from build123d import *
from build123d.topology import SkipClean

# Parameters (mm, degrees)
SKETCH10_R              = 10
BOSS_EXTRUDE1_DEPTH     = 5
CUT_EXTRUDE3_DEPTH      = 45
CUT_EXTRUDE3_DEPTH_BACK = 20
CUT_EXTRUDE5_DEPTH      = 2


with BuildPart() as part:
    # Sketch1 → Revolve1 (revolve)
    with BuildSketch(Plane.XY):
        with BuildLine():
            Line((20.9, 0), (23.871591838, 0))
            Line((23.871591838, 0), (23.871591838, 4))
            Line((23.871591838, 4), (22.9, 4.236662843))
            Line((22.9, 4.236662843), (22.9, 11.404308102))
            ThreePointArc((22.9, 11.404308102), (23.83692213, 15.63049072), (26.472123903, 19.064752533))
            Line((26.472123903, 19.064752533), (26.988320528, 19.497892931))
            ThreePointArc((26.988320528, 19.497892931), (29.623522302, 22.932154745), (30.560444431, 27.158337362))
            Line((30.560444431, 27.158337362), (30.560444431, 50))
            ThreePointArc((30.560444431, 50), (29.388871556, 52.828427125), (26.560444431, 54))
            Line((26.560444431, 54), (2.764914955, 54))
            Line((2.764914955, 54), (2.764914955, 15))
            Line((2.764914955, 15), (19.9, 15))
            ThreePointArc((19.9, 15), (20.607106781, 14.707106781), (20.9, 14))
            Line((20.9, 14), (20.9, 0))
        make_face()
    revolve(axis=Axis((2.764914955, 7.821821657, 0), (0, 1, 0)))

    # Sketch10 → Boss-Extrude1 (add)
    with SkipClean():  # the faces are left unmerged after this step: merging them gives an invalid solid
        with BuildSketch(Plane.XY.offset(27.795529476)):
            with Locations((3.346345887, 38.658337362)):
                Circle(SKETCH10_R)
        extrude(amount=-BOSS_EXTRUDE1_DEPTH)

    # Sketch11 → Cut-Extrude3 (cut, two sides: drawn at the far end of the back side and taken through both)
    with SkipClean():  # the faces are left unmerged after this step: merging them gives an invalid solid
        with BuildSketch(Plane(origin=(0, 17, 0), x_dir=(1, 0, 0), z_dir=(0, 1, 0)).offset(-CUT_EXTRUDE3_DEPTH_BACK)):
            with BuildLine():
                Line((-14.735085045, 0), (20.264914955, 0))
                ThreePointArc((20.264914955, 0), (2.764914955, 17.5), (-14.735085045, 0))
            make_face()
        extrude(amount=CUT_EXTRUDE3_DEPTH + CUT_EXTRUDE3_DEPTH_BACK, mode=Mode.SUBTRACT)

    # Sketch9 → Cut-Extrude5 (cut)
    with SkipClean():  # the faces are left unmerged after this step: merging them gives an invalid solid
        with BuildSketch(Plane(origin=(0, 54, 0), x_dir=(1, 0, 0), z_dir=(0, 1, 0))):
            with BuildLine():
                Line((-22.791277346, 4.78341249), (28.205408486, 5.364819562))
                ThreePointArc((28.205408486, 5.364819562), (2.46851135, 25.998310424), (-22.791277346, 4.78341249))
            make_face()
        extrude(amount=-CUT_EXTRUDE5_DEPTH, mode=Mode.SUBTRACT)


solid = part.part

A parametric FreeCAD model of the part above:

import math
import FreeCAD as App
import Part
import Sketcher

V = App.Vector
Q = App.Units.Quantity

doc = App.newDocument("Part")
body = doc.addObject("PartDesign::Body", "Body")

# Sketch on XY plane
sketch1 = doc.addObject("Sketcher::SketchObject", "Sketch")
body.addObject(sketch1)
sketch1.AttachmentSupport = (doc.XY_Plane, [""])
sketch1.MapMode = "FlatFace"
sketch1.addGeometry([
    Part.LineSegment(V(20.9, 0, 0), V(23.9, 0, 0)),  # 0
    Part.LineSegment(V(23.9, 0, 0), V(23.9, 4, 0)),  # 1
    Part.LineSegment(V(23.9, 4, 0), V(22.9, 4.2, 0)),  # 2
    Part.LineSegment(V(22.9, 4.2, 0), V(22.9, 11.4, 0)),  # 3
    Part.ArcOfCircle(Part.Circle(V(32.9, 11.4, 0), V(0, 0, 1), 10), math.radians(130), math.radians(180)),  # 4
    Part.LineSegment(V(26.5, 19.1, 0), V(27, 19.5, 0)),  # 5
    Part.ArcOfCircle(Part.Circle(V(20.6, 27.2, 0), V(0, 0, 1), 10), math.radians(-50), math.radians(0)),  # 6
    Part.LineSegment(V(30.6, 27.2, 0), V(30.6, 50, 0)),  # 7
    Part.ArcOfCircle(Part.Circle(V(26.6, 50, 0), V(0, 0, 1), 4), math.radians(0), math.radians(90)),  # 8
    Part.LineSegment(V(26.6, 54, 0), V(2.8, 54, 0)),  # 9
    Part.LineSegment(V(2.8, 54, 0), V(2.8, 15, 0)),  # 10
    Part.LineSegment(V(2.8, 15, 0), V(19.9, 15, 0)),  # 11
    Part.ArcOfCircle(Part.Circle(V(19.9, 14, 0), V(0, 0, 1), 1), math.radians(0), math.radians(90)),  # 12
    Part.LineSegment(V(20.9, 14, 0), V(20.9, 0, 0)),  # 13
], False)
sketch1.addGeometry(Part.LineSegment(V(2.8, 0, 0), V(2.8, 54, 0)), True)  # axis
sketch1.addConstraint([
    Sketcher.Constraint("Coincident", 0, 2, 1, 1),
    Sketcher.Constraint("Coincident", 1, 2, 2, 1),
    Sketcher.Constraint("Coincident", 2, 2, 3, 1),
    Sketcher.Constraint("Tangent", 3, 2, 4, 2),
    Sketcher.Constraint("Tangent", 4, 1, 5, 1),
    Sketcher.Constraint("Tangent", 5, 2, 6, 1),
    Sketcher.Constraint("Tangent", 6, 2, 7, 1),
    Sketcher.Constraint("Tangent", 7, 2, 8, 1),
    Sketcher.Constraint("Tangent", 8, 2, 9, 1),
    Sketcher.Constraint("Coincident", 9, 2, 10, 1),
    Sketcher.Constraint("Coincident", 10, 2, 11, 1),
    Sketcher.Constraint("Tangent", 11, 2, 12, 2),
    Sketcher.Constraint("Tangent", 12, 1, 13, 1),
    Sketcher.Constraint("Coincident", 13, 2, 0, 1),
    Sketcher.Constraint("Horizontal", 0),
    Sketcher.Constraint("Vertical", 1),
    Sketcher.Constraint("Vertical", 3),
    Sketcher.Constraint("Vertical", 7),
    Sketcher.Constraint("Horizontal", 9),
    Sketcher.Constraint("Vertical", 10),
    Sketcher.Constraint("Horizontal", 11),
    Sketcher.Constraint("Vertical", 13),
    Sketcher.Constraint("Vertical", 14),
    Sketcher.Constraint("Coincident", 14, 2, 9, 2),
    Sketcher.Constraint("Equal", 4, 6),
    Sketcher.Constraint("PointOnObject", 0, 2, -1),
    Sketcher.Constraint("PointOnObject", 14, 1, -1),
    Sketcher.Constraint("Radius", 4, Q("10 mm")),
    Sketcher.Constraint("Radius", 8, Q("4 mm")),
    Sketcher.Constraint("Radius", 12, Q("1 mm")),
    Sketcher.Constraint("DistanceY", 1, 1, 1, 2, Q("4 mm")),
    Sketcher.Constraint("DistanceY", 10, 2, 10, 1, Q("39 mm")),
    Sketcher.Constraint("DistanceY", 13, 2, 13, 1, Q("14 mm")),
    Sketcher.Constraint("Angle", 5, Q("40 deg")),
    Sketcher.Constraint("Distance", 2, Q("1 mm")),
    Sketcher.Constraint("DistanceX", 12, 3, 4, 3, Q("13 mm")),
    Sketcher.Constraint("DistanceX", -1, 1, 4, 3, Q("32.9 mm")),
    Sketcher.Constraint("DistanceX", 0, 1, 0, 2, Q("2.971592 mm")),
    Sketcher.Constraint("DistanceX", 9, 2, 9, 1, Q("23.795529 mm")),
    Sketcher.Constraint("DistanceX", 11, 1, 11, 2, Q("17.135085 mm")),
    Sketcher.Constraint("DistanceY", 3, 1, 3, 2, Q("7.167645 mm")),
])
revolution = doc.addObject("PartDesign::Revolution", "Revolution")
body.addObject(revolution)
revolution.Profile = sketch1
revolution.ReferenceAxis = (sketch1, ["Axis0"])
revolution.Angle = 360

# Sketch on XY plane
sketch2 = doc.addObject("Sketcher::SketchObject", "Sketch001")
body.addObject(sketch2)
sketch2.AttachmentSupport = (doc.XY_Plane, [""])
sketch2.MapMode = "FlatFace"
sketch2.AttachmentOffset = App.Placement(V(0, 0, 27.795529), App.Rotation())
sketch2.addGeometry(Part.Circle(V(3, 39, 0), V(0, 0, 1), 10), False)
sketch2.addConstraint([
    Sketcher.Constraint("Diameter", 0, Q("20 mm")),
    Sketcher.Constraint("DistanceX", -1, 1, 0, 3, Q("3.346346 mm")),
    Sketcher.Constraint("DistanceY", -1, 1, 0, 3, Q("38.658337 mm")),
])
pad1 = doc.addObject("PartDesign::Pad", "Pad")
body.addObject(pad1)
pad1.Profile = sketch2
pad1.Length = 5
pad1.Reversed = True

# Sketch on XZ plane
sketch3 = doc.addObject("Sketcher::SketchObject", "Sketch002")
body.addObject(sketch3)
sketch3.AttachmentSupport = (doc.XZ_Plane, [""])
sketch3.MapMode = "FlatFace"
sketch3.AttachmentOffset = App.Placement(V(0, 0, -17), App.Rotation())
sketch3.addGeometry([
    Part.LineSegment(V(-15, 0, 0), V(20, 0, 0)),
    Part.ArcOfCircle(Part.Circle(V(3, 0, 0), V(0, 0, 1), 18), math.radians(180), math.radians(360)),
], False)
sketch3.addConstraint([
    Sketcher.Constraint("Coincident", 0, 1, 1, 1),
    Sketcher.Constraint("Coincident", 1, 2, 0, 2),
    Sketcher.Constraint("Horizontal", 0),
    Sketcher.Constraint("PointOnObject", 1, 3, -1),
    Sketcher.Constraint("PointOnObject", 0, 1, -1),
    Sketcher.Constraint("Radius", 1, Q("17.5 mm")),
    Sketcher.Constraint("DistanceX", -1, 1, 1, 3, Q("2.764915 mm")),
])
pocket1 = doc.addObject("PartDesign::Pocket", "Pocket")
body.addObject(pocket1)
pocket1.Profile = sketch3
pocket1.Type = "ThroughAll"
pocket1.Midplane = True

# Sketch on XZ plane
sketch4 = doc.addObject("Sketcher::SketchObject", "Sketch003")
body.addObject(sketch4)
sketch4.AttachmentSupport = (doc.XZ_Plane, [""])
sketch4.MapMode = "FlatFace"
sketch4.AttachmentOffset = App.Placement(V(0, 0, -54), App.Rotation())
sketch4.addGeometry([
    Part.LineSegment(V(-23, -5, 0), V(28, -5, 0)),
    Part.ArcOfCircle(Part.Circle(V(3, 0, 0), V(0, 0, 1), 26), math.radians(-169), math.radians(-12)),
], False)
sketch4.addConstraint([
    Sketcher.Constraint("Coincident", 0, 1, 1, 1),
    Sketcher.Constraint("Coincident", 1, 2, 0, 2),
    Sketcher.Constraint("PointOnObject", 1, 3, -1),
    Sketcher.Constraint("Radius", 1, Q("26 mm")),
    Sketcher.Constraint("Distance", 0, Q("51 mm")),
    Sketcher.Constraint("DistanceX", -1, 1, 1, 2, Q("28.205408 mm")),
    Sketcher.Constraint("DistanceY", 1, 2, -1, 1, Q("5.36482 mm")),
])
pocket2 = doc.addObject("PartDesign::Pocket", "Pocket001")
body.addObject(pocket2)
pocket2.Profile = sketch4
pocket2.Length = 2
pocket2.Reversed = True

doc.recompute()
